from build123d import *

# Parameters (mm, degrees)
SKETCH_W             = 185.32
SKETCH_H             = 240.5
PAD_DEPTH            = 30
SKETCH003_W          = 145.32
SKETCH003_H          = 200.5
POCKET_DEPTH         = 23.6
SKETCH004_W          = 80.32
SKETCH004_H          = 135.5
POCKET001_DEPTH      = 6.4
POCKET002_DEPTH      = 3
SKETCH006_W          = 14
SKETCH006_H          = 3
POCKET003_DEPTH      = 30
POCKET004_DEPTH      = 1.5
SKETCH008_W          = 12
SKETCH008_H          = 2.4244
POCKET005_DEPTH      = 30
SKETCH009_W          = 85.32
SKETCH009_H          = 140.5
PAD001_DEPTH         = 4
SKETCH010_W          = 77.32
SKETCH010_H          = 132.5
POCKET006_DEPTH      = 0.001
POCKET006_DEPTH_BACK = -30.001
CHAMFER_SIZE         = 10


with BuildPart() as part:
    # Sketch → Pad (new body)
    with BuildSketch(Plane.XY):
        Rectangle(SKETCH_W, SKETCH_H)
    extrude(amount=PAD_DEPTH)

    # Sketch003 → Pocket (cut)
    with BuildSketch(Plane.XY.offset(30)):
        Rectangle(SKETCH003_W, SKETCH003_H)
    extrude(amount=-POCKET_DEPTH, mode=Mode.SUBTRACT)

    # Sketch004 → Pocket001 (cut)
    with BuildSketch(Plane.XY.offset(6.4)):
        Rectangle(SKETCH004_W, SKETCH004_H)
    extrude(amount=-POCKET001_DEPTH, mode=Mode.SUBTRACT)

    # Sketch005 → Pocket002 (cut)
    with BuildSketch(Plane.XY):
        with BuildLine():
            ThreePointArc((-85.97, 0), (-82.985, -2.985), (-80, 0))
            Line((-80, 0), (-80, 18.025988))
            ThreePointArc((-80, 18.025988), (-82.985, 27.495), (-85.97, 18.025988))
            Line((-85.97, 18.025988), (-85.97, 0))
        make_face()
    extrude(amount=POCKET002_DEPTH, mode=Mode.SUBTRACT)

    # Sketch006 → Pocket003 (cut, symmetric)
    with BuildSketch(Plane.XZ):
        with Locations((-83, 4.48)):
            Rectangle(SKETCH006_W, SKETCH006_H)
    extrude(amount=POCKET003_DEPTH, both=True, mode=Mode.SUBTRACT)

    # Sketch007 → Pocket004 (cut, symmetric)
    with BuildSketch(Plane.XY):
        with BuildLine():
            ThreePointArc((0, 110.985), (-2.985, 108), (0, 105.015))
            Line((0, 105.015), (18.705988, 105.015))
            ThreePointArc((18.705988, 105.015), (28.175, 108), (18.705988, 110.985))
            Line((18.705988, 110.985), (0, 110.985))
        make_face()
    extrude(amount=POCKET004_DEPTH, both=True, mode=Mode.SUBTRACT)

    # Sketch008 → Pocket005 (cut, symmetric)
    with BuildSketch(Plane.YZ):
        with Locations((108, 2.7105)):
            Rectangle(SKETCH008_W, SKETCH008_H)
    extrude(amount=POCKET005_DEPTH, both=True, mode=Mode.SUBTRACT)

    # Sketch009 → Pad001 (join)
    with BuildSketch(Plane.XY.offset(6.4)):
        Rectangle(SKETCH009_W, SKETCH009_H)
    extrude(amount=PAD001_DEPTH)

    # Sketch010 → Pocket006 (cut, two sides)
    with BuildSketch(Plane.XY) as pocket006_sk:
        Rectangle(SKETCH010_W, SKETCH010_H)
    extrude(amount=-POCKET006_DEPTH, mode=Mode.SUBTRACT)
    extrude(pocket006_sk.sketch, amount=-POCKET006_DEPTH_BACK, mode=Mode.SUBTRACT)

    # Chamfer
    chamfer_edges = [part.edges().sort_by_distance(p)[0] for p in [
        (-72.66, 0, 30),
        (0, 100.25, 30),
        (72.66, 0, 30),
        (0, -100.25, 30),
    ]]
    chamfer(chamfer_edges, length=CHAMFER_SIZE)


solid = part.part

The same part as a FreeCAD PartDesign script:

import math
import FreeCAD as App
import Part
import Sketcher
from FreeCAD import Vector
Q = App.Units.Quantity


def edges_at(feature, points):
    """Names of the edges that pass closest to the given points."""
    edges = feature.Shape.Edges
    near = lambda p: min(range(len(edges)), key=lambda i: edges[i].distToShape(Part.Vertex(*p))[0])
    return sorted({f"Edge{near(p) + 1}" for p in points})


def add_polygon(sketch, points):
    """Adds a closed chain of lines whose ends are joined by coincident constraints."""
    first, n = sketch.GeometryCount, len(points)
    for a, b in zip(points, points[1:] + points[:1]):
        sketch.addGeometry(Part.LineSegment(App.Vector(*a, 0), App.Vector(*b, 0)), False)
    for i in range(n):
        sketch.addConstraint(Sketcher.Constraint("Coincident", first + i, 2, first + (i + 1) % n, 1))

doc = App.newDocument("Part")
body = doc.addObject("PartDesign::Body", "Body")

sketch1 = doc.addObject("Sketcher::SketchObject", "Sketch")
body.addObject(sketch1)
sketch1.AttachmentSupport = (doc.XY_Plane, [""])
sketch1.MapMode = "FlatFace"
add_polygon(sketch1, [(-92.66, 120.25), (-92.66, -120.25), (92.66, -120.25), (92.66, 120.25)])
sketch1.addConstraint([
    Sketcher.Constraint("Vertical", 0),
    Sketcher.Constraint("Horizontal", 1),
    Sketcher.Constraint("Vertical", 2),
    Sketcher.Constraint("Horizontal", 3),
    Sketcher.Constraint("Symmetric", 0, 2, 2, 2, -1, 1),
    Sketcher.Constraint("DistanceY", 0, 2, 0, 1, Q("240.5 mm")),
    Sketcher.Constraint("DistanceX", 1, 1, 1, 2, Q("185.32 mm")),
])
pad1 = doc.addObject("PartDesign::Pad", "Pad")
body.addObject(pad1)
pad1.Profile = sketch1
pad1.Length = 30

sketch2 = doc.addObject("Sketcher::SketchObject", "Sketch001")
body.addObject(sketch2)
sketch2.AttachmentSupport = (doc.XY_Plane, [""])
sketch2.MapMode = "FlatFace"
sketch2.AttachmentOffset = App.Placement(Vector(0, 0, 30), App.Rotation())
add_polygon(sketch2, [(-72.66, 100.25), (-72.66, -100.25), (72.66, -100.25), (72.66, 100.25)])
sketch2.addConstraint([
    Sketcher.Constraint("Vertical", 0),
    Sketcher.Constraint("Horizontal", 1),
    Sketcher.Constraint("Vertical", 2),
    Sketcher.Constraint("Horizontal", 3),
    Sketcher.Constraint("Symmetric", 0, 2, 2, 2, -1, 1),
    Sketcher.Constraint("DistanceY", 0, 2, 0, 1, Q("200.5 mm")),
    Sketcher.Constraint("DistanceX", 1, 1, 1, 2, Q("145.32 mm")),
])
pocket1 = doc.addObject("PartDesign::Pocket", "Pocket")
body.addObject(pocket1)
pocket1.Profile = sketch2
pocket1.Length = 23.6

sketch3 = doc.addObject("Sketcher::SketchObject", "Sketch002")
body.addObject(sketch3)
sketch3.AttachmentSupport = (doc.XY_Plane, [""])
sketch3.MapMode = "FlatFace"
sketch3.AttachmentOffset = App.Placement(Vector(0, 0, 6.4), App.Rotation())
add_polygon(sketch3, [(-40.16, 67.75), (-40.16, -67.75), (40.16, -67.75), (40.16, 67.75)])
sketch3.addConstraint([
    Sketcher.Constraint("Vertical", 0),
    Sketcher.Constraint("Horizontal", 1),
    Sketcher.Constraint("Vertical", 2),
    Sketcher.Constraint("Horizontal", 3),
    Sketcher.Constraint("Symmetric", 0, 2, 2, 2, -1, 1),
    Sketcher.Constraint("DistanceY", 0, 2, 0, 1, Q("135.5 mm")),
    Sketcher.Constraint("DistanceX", 1, 1, 1, 2, Q("80.32 mm")),
])
pocket2 = doc.addObject("PartDesign::Pocket", "Pocket001")
body.addObject(pocket2)
pocket2.Profile = sketch3
pocket2.Length = 6.4

sketch4 = doc.addObject("Sketcher::SketchObject", "Sketch003")
body.addObject(sketch4)
sketch4.AttachmentSupport = (doc.XY_Plane, [""])
sketch4.MapMode = "FlatFace"
sketch4.addGeometry([
    Part.ArcOfCircle(Part.Circle(Vector(-82.985, 0, 0), Vector(0, 0, 1), 2.985), math.radians(180), math.radians(360)),
    Part.LineSegment(Vector(-80, 0, 0), Vector(-80, 18.025988, 0)),
    Part.ArcOfCircle(Part.Circle(Vector(-82.985, 22.29, 0), Vector(0, 0, 1), 5.205), math.radians(-55.006253), math.radians(235.006253)),
    Part.LineSegment(Vector(-85.97, 18.025988, 0), Vector(-85.97, 0, 0)),
], False)
sketch4.addConstraint([
    Sketcher.Constraint("Tangent", 0, 2, 1, 1),
    Sketcher.Constraint("Coincident", 1, 2, 2, 1),
    Sketcher.Constraint("Coincident", 2, 2, 3, 1),
    Sketcher.Constraint("Tangent", 3, 2, 0, 1),
    Sketcher.Constraint("Vertical", 1),
    Sketcher.Constraint("Vertical", 3),
    Sketcher.Constraint("PointOnObject", 0, 3, -1),
    Sketcher.Constraint("Horizontal", 1, 2, 2, 2),
    Sketcher.Constraint("DistanceX", 0, 2, -1, 1, Q("80 mm")),
    Sketcher.Constraint("Radius", 0, Q("2.985 mm")),
    Sketcher.Constraint("Radius", 2, Q("5.205 mm")),
    Sketcher.Constraint("DistanceY", -1, 1, 2, 3, Q("22.29 mm")),
])
pocket3 = doc.addObject("PartDesign::Pocket", "Pocket002")
body.addObject(pocket3)
pocket3.Profile = sketch4
pocket3.Length = 3
pocket3.Reversed = True

sketch5 = doc.addObject("Sketcher::SketchObject", "Sketch004")
body.addObject(sketch5)
sketch5.AttachmentSupport = (doc.XZ_Plane, [""])
sketch5.MapMode = "FlatFace"
add_polygon(sketch5, [(-90, 5.98), (-90, 2.98), (-76, 2.98), (-76, 5.98)])
sketch5.addConstraint([
    Sketcher.Constraint("Vertical", 0),
    Sketcher.Constraint("Horizontal", 1),
    Sketcher.Constraint("Vertical", 2),
    Sketcher.Constraint("Horizontal", 3),
    Sketcher.Constraint("DistanceX", 1, 1, 1, 2, Q("14 mm")),
    Sketcher.Constraint("DistanceY", 0, 2, 0, 1, Q("3 mm")),
    Sketcher.Constraint("DistanceX", 0, 2, -1, 1, Q("90 mm")),
    Sketcher.Constraint("DistanceY", -1, 1, 0, 2, Q("2.98 mm")),
])
pocket4 = doc.addObject("PartDesign::Pocket", "Pocket003")
body.addObject(pocket4)
pocket4.Profile = sketch5
pocket4.Length = 60
pocket4.Midplane = True

sketch6 = doc.addObject("Sketcher::SketchObject", "Sketch005")
body.addObject(sketch6)
sketch6.AttachmentSupport = (doc.XY_Plane, [""])
sketch6.MapMode = "FlatFace"
sketch6.addGeometry([
    Part.ArcOfCircle(Part.Circle(Vector(0, 108, 0), Vector(0, 0, 1), 2.985), math.radians(90), math.radians(270)),
    Part.LineSegment(Vector(0, 105.015, 0), Vector(18.705988, 105.015, 0)),
    Part.ArcOfCircle(Part.Circle(Vector(22.97, 108, 0), Vector(0, 0, 1), 5.205), math.radians(-145.006253), math.radians(145.006253)),
    Part.LineSegment(Vector(18.705988, 110.985, 0), Vector(0, 110.985, 0)),
], False)
sketch6.addConstraint([
    Sketcher.Constraint("Tangent", 0, 2, 1, 1),
    Sketcher.Constraint("Coincident", 1, 2, 2, 1),
    Sketcher.Constraint("Coincident", 2, 2, 3, 1),
    Sketcher.Constraint("Tangent", 3, 2, 0, 1),
    Sketcher.Constraint("Horizontal", 1),
    Sketcher.Constraint("Horizontal", 3),
    Sketcher.Constraint("PointOnObject", 0, 3, -2),
    Sketcher.Constraint("Horizontal", 0, 3, 2, 3),
    Sketcher.Constraint("DistanceY", -1, 1, 0, 3, Q("108 mm")),
    Sketcher.Constraint("Radius", 0, Q("2.985 mm")),
    Sketcher.Constraint("Radius", 2, Q("5.205 mm")),
    Sketcher.Constraint("DistanceX", -1, 1, 2, 3, Q("22.97 mm")),
])
pocket5 = doc.addObject("PartDesign::Pocket", "Pocket004")
body.addObject(pocket5)
pocket5.Profile = sketch6
pocket5.Length = 3
pocket5.Midplane = True

sketch7 = doc.addObject("Sketcher::SketchObject", "Sketch006")
body.addObject(sketch7)
sketch7.AttachmentSupport = (doc.YZ_Plane, [""])
sketch7.MapMode = "FlatFace"
add_polygon(sketch7, [(102, 3.9227), (102, 1.4983), (114, 1.4983), (114, 3.9227)])
sketch7.addConstraint([
    Sketcher.Constraint("Vertical", 0),
    Sketcher.Constraint("Horizontal", 1),
    Sketcher.Constraint("Vertical", 2),
    Sketcher.Constraint("Horizontal", 3),
    Sketcher.Constraint("DistanceX", 1, 1, 1, 2, Q("12 mm")),
    Sketcher.Constraint("DistanceX", -1, 1, 0, 2, Q("102 mm")),
    Sketcher.Constraint("DistanceY", 0, 2, 0, 1, Q("2.4244 mm")),
    Sketcher.Constraint("DistanceY", -1, 1, 0, 2, Q("1.4983 mm")),
])
pocket6 = doc.addObject("PartDesign::Pocket", "Pocket005")
body.addObject(pocket6)
pocket6.Profile = sketch7
pocket6.Length = 60
pocket6.Midplane = True

sketch8 = doc.addObject("Sketcher::SketchObject", "Sketch007")
body.addObject(sketch8)
sketch8.AttachmentSupport = (doc.XY_Plane, [""])
sketch8.MapMode = "FlatFace"
sketch8.AttachmentOffset = App.Placement(Vector(0, 0, 6.4), App.Rotation())
add_polygon(sketch8, [(-42.66, 70.25), (-42.66, -70.25), (42.66, -70.25), (42.66, 70.25)])
sketch8.addConstraint([
    Sketcher.Constraint("Vertical", 0),
    Sketcher.Constraint("Horizontal", 1),
    Sketcher.Constraint("Vertical", 2),
    Sketcher.Constraint("Horizontal", 3),
    Sketcher.Constraint("Symmetric", 0, 2, 2, 2, -1, 1),
    Sketcher.Constraint("DistanceY", 0, 2, 0, 1, Q("140.5 mm")),
    Sketcher.Constraint("DistanceX", 1, 1, 1, 2, Q("85.32 mm")),
])
pad2 = doc.addObject("PartDesign::Pad", "Pad001")
body.addObject(pad2)
pad2.Profile = sketch8
pad2.Length = 4

sketch9 = doc.addObject("Sketcher::SketchObject", "Sketch008")
body.addObject(sketch9)
sketch9.AttachmentSupport = (doc.XY_Plane, [""])
sketch9.MapMode = "FlatFace"
add_polygon(sketch9, [(-38.66, 66.25), (-38.66, -66.25), (38.66, -66.25), (38.66, 66.25)])
sketch9.addConstraint([
    Sketcher.Constraint("Vertical", 0),
    Sketcher.Constraint("Horizontal", 1),
    Sketcher.Constraint("Vertical", 2),
    Sketcher.Constraint("Horizontal", 3),
    Sketcher.Constraint("Symmetric", 0, 2, 2, 2, -1, 1),
    Sketcher.Constraint("DistanceY", 0, 2, 0, 1, Q("132.5 mm")),
    Sketcher.Constraint("DistanceX", 1, 1, 1, 2, Q("77.32 mm")),
])
pocket7 = doc.addObject("PartDesign::Pocket", "Pocket006")
body.addObject(pocket7)
pocket7.Profile = sketch9
pocket7.Type = "ThroughAll"
pocket7.Midplane = True
doc.recompute()

chamfer = doc.addObject("PartDesign::Chamfer", "Chamfer")
body.addObject(chamfer)
chamfer.Base = (pocket7, edges_at(pocket7, [
    (-72.66, 0, 30),
    (0, 100.25, 30),
    (72.66, 0, 30),
    (0, -100.25, 30),
]))
chamfer.Size = 10

doc.recompute()
